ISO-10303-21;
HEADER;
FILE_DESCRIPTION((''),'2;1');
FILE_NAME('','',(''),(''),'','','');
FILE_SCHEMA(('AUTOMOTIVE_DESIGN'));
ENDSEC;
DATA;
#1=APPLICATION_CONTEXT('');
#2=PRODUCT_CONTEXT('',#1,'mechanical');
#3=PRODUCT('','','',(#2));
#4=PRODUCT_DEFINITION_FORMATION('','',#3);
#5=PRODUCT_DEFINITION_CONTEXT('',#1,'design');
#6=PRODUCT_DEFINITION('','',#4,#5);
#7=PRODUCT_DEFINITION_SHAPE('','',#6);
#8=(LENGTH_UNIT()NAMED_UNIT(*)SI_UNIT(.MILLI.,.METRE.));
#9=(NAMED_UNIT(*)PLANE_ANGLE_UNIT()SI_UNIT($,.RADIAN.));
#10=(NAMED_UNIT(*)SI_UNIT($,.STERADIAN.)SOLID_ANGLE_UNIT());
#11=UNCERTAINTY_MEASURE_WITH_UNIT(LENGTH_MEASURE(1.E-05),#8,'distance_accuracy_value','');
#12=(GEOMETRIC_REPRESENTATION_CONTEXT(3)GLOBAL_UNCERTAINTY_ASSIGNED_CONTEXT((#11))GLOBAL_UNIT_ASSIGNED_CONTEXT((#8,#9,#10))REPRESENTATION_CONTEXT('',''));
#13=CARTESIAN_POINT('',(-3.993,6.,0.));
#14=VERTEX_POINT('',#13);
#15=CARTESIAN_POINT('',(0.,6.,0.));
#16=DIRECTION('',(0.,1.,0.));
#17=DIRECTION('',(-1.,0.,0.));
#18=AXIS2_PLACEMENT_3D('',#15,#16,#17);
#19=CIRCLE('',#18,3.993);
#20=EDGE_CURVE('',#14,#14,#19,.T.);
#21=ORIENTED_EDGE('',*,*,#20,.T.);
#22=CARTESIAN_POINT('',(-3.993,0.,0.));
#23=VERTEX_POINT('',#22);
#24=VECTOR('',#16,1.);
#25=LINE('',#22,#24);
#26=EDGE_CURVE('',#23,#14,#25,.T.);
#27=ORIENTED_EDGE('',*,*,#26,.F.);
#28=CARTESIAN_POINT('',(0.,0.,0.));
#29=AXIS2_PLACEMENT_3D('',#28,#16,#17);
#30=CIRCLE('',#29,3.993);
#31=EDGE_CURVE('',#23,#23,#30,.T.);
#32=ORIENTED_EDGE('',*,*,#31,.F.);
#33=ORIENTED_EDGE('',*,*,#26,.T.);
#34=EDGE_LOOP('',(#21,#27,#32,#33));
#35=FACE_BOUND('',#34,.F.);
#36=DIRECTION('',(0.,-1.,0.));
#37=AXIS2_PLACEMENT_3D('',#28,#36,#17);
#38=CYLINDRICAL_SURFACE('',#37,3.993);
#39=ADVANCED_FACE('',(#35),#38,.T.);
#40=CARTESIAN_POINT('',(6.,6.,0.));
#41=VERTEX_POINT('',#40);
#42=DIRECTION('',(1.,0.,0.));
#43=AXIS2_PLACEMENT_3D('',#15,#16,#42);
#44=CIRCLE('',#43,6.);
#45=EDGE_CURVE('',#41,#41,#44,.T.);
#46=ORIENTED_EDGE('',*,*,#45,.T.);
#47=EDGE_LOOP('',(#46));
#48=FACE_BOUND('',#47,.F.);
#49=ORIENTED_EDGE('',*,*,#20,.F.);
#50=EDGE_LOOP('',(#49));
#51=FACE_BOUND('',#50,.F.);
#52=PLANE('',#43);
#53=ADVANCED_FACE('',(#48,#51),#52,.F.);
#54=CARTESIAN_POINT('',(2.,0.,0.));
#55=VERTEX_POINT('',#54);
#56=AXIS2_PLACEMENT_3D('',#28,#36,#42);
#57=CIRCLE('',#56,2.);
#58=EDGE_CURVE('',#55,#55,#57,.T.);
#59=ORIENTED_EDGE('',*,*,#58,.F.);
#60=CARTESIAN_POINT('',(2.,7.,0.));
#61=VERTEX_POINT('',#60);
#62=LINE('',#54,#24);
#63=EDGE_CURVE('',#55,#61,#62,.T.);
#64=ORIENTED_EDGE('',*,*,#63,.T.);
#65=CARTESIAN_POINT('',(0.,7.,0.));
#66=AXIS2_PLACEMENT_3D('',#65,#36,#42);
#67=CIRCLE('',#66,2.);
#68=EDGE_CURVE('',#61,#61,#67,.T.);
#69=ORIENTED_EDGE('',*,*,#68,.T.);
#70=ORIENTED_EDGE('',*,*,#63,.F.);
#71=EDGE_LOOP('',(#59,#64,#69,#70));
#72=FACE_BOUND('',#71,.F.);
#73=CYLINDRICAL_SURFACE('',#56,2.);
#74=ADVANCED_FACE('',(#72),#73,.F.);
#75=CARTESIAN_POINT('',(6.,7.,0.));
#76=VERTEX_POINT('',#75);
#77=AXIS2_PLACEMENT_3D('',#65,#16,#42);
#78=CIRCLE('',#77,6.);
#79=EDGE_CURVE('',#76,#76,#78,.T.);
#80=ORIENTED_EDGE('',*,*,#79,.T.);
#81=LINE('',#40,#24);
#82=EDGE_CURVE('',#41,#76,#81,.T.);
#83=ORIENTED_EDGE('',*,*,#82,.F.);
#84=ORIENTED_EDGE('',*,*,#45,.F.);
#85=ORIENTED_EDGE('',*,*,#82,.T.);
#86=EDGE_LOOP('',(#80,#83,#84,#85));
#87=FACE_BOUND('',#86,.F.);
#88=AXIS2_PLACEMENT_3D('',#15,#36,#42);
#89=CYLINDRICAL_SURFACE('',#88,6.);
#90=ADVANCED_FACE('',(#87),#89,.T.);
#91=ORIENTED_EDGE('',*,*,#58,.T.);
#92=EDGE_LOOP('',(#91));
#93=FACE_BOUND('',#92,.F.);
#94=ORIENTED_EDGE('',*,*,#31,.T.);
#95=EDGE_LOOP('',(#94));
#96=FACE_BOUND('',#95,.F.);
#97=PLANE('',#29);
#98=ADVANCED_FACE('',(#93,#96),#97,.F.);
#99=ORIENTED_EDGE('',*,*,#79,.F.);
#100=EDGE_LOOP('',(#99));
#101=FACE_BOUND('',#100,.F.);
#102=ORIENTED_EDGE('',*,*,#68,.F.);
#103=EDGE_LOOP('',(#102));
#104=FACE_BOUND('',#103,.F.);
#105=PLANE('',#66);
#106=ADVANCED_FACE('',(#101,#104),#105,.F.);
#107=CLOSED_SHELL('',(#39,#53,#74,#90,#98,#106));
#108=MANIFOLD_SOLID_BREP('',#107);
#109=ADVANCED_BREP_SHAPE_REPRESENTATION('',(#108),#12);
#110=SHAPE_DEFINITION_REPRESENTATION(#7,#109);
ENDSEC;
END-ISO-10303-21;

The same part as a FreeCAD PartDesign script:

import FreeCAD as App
import Part
import Sketcher

V = App.Vector
Q = App.Units.Quantity

doc = App.newDocument("Part")
params = doc.addObject("Spreadsheet::Sheet", "Params")
for row, (alias, value) in enumerate([
    ("pad1_length", "6 mm"),
    ("sketch2_diameter", "12 mm"),
    ("pad2_length", "1 mm"),
    ("sketch3_diameter", "4 mm"),
    ("pad3_length", "7 mm"),
], start=1):
    params.set(f"A{row}", alias)
    params.set(f"B{row}", "=" + value)
    params.setAlias(f"B{row}", alias)

body = doc.addObject("PartDesign::Body", "Body")

sketch1 = body.newObject("Sketcher::SketchObject", "Sketch")
sketch1.AttachmentSupport = (doc.getObject("XZ_Plane"), [""])
sketch1.MapMode = "FlatFace"
sketch1.addGeometry([
    Part.Circle(V(0, 0, 0), V(0, 0, 1), 4),
    Part.Circle(V(0, 0, 0), V(0, 0, 1), 2.1),
], False)
sketch1.addConstraint([
    Sketcher.Constraint("Coincident", 0, 3, -1, 1),
    Sketcher.Constraint("Coincident", 1, 3, -1, 1),
    Sketcher.Constraint("Diameter", 0, Q("7.986 mm")),
    Sketcher.Constraint("Diameter", 1, Q("4.125 mm")),
])
pad1 = body.newObject("PartDesign::Pad", "Pad")
pad1.Profile = sketch1
pad1.setExpression("Length", "Params.pad1_length")
pad1.Reversed = True

sketch2 = body.newObject("Sketcher::SketchObject", "Sketch001")
sketch2.AttachmentSupport = (doc.getObject("XZ_Plane"), [""])
sketch2.MapMode = "FlatFace"
sketch2.AttachmentOffset = App.Placement(V(0, 0, -6), App.Rotation())
sketch2.addGeometry([
    Part.Circle(V(0, 0, 0), V(0, 0, 1), 6),
    Part.Circle(V(0, 0, 0), V(0, 0, 1), 2.1),
], False)
sketch2.addConstraint([
    Sketcher.Constraint("Coincident", 0, 3, -1, 1),
    Sketcher.Constraint("Coincident", 1, 3, -1, 1),
    Sketcher.Constraint("Diameter", 0, Q("12 mm")),
    Sketcher.Constraint("Diameter", 1, Q("4.125 mm")),
])
sketch2.setExpression("Constraints[2]", "Params.sketch2_diameter")
pad2 = body.newObject("PartDesign::Pad", "Pad001")
pad2.Profile = sketch2
pad2.setExpression("Length", "Params.pad2_length")
pad2.Reversed = True

sketch3 = body.newObject("Sketcher::SketchObject", "Sketch002")
sketch3.AttachmentSupport = (doc.getObject("XZ_Plane"), [""])
sketch3.MapMode = "FlatFace"
sketch3.addGeometry([
    Part.Circle(V(0, 0, 0), V(0, 0, 1), 2.2),
    Part.Circle(V(0, 0, 0), V(0, 0, 1), 2),
], False)
sketch3.addConstraint([
    Sketcher.Constraint("Coincident", 0, 3, -1, 1),
    Sketcher.Constraint("Coincident", 1, 3, -1, 1),
    Sketcher.Constraint("Diameter", 1, Q("4 mm")),
    Sketcher.Constraint("Diameter", 0, Q("4.4722 mm")),
])
sketch3.setExpression("Constraints[2]", "Params.sketch3_diameter")
pad3 = body.newObject("PartDesign::Pad", "Pad002")
pad3.Profile = sketch3
pad3.setExpression("Length", "Params.pad3_length")
pad3.Reversed = True

doc.recompute()
